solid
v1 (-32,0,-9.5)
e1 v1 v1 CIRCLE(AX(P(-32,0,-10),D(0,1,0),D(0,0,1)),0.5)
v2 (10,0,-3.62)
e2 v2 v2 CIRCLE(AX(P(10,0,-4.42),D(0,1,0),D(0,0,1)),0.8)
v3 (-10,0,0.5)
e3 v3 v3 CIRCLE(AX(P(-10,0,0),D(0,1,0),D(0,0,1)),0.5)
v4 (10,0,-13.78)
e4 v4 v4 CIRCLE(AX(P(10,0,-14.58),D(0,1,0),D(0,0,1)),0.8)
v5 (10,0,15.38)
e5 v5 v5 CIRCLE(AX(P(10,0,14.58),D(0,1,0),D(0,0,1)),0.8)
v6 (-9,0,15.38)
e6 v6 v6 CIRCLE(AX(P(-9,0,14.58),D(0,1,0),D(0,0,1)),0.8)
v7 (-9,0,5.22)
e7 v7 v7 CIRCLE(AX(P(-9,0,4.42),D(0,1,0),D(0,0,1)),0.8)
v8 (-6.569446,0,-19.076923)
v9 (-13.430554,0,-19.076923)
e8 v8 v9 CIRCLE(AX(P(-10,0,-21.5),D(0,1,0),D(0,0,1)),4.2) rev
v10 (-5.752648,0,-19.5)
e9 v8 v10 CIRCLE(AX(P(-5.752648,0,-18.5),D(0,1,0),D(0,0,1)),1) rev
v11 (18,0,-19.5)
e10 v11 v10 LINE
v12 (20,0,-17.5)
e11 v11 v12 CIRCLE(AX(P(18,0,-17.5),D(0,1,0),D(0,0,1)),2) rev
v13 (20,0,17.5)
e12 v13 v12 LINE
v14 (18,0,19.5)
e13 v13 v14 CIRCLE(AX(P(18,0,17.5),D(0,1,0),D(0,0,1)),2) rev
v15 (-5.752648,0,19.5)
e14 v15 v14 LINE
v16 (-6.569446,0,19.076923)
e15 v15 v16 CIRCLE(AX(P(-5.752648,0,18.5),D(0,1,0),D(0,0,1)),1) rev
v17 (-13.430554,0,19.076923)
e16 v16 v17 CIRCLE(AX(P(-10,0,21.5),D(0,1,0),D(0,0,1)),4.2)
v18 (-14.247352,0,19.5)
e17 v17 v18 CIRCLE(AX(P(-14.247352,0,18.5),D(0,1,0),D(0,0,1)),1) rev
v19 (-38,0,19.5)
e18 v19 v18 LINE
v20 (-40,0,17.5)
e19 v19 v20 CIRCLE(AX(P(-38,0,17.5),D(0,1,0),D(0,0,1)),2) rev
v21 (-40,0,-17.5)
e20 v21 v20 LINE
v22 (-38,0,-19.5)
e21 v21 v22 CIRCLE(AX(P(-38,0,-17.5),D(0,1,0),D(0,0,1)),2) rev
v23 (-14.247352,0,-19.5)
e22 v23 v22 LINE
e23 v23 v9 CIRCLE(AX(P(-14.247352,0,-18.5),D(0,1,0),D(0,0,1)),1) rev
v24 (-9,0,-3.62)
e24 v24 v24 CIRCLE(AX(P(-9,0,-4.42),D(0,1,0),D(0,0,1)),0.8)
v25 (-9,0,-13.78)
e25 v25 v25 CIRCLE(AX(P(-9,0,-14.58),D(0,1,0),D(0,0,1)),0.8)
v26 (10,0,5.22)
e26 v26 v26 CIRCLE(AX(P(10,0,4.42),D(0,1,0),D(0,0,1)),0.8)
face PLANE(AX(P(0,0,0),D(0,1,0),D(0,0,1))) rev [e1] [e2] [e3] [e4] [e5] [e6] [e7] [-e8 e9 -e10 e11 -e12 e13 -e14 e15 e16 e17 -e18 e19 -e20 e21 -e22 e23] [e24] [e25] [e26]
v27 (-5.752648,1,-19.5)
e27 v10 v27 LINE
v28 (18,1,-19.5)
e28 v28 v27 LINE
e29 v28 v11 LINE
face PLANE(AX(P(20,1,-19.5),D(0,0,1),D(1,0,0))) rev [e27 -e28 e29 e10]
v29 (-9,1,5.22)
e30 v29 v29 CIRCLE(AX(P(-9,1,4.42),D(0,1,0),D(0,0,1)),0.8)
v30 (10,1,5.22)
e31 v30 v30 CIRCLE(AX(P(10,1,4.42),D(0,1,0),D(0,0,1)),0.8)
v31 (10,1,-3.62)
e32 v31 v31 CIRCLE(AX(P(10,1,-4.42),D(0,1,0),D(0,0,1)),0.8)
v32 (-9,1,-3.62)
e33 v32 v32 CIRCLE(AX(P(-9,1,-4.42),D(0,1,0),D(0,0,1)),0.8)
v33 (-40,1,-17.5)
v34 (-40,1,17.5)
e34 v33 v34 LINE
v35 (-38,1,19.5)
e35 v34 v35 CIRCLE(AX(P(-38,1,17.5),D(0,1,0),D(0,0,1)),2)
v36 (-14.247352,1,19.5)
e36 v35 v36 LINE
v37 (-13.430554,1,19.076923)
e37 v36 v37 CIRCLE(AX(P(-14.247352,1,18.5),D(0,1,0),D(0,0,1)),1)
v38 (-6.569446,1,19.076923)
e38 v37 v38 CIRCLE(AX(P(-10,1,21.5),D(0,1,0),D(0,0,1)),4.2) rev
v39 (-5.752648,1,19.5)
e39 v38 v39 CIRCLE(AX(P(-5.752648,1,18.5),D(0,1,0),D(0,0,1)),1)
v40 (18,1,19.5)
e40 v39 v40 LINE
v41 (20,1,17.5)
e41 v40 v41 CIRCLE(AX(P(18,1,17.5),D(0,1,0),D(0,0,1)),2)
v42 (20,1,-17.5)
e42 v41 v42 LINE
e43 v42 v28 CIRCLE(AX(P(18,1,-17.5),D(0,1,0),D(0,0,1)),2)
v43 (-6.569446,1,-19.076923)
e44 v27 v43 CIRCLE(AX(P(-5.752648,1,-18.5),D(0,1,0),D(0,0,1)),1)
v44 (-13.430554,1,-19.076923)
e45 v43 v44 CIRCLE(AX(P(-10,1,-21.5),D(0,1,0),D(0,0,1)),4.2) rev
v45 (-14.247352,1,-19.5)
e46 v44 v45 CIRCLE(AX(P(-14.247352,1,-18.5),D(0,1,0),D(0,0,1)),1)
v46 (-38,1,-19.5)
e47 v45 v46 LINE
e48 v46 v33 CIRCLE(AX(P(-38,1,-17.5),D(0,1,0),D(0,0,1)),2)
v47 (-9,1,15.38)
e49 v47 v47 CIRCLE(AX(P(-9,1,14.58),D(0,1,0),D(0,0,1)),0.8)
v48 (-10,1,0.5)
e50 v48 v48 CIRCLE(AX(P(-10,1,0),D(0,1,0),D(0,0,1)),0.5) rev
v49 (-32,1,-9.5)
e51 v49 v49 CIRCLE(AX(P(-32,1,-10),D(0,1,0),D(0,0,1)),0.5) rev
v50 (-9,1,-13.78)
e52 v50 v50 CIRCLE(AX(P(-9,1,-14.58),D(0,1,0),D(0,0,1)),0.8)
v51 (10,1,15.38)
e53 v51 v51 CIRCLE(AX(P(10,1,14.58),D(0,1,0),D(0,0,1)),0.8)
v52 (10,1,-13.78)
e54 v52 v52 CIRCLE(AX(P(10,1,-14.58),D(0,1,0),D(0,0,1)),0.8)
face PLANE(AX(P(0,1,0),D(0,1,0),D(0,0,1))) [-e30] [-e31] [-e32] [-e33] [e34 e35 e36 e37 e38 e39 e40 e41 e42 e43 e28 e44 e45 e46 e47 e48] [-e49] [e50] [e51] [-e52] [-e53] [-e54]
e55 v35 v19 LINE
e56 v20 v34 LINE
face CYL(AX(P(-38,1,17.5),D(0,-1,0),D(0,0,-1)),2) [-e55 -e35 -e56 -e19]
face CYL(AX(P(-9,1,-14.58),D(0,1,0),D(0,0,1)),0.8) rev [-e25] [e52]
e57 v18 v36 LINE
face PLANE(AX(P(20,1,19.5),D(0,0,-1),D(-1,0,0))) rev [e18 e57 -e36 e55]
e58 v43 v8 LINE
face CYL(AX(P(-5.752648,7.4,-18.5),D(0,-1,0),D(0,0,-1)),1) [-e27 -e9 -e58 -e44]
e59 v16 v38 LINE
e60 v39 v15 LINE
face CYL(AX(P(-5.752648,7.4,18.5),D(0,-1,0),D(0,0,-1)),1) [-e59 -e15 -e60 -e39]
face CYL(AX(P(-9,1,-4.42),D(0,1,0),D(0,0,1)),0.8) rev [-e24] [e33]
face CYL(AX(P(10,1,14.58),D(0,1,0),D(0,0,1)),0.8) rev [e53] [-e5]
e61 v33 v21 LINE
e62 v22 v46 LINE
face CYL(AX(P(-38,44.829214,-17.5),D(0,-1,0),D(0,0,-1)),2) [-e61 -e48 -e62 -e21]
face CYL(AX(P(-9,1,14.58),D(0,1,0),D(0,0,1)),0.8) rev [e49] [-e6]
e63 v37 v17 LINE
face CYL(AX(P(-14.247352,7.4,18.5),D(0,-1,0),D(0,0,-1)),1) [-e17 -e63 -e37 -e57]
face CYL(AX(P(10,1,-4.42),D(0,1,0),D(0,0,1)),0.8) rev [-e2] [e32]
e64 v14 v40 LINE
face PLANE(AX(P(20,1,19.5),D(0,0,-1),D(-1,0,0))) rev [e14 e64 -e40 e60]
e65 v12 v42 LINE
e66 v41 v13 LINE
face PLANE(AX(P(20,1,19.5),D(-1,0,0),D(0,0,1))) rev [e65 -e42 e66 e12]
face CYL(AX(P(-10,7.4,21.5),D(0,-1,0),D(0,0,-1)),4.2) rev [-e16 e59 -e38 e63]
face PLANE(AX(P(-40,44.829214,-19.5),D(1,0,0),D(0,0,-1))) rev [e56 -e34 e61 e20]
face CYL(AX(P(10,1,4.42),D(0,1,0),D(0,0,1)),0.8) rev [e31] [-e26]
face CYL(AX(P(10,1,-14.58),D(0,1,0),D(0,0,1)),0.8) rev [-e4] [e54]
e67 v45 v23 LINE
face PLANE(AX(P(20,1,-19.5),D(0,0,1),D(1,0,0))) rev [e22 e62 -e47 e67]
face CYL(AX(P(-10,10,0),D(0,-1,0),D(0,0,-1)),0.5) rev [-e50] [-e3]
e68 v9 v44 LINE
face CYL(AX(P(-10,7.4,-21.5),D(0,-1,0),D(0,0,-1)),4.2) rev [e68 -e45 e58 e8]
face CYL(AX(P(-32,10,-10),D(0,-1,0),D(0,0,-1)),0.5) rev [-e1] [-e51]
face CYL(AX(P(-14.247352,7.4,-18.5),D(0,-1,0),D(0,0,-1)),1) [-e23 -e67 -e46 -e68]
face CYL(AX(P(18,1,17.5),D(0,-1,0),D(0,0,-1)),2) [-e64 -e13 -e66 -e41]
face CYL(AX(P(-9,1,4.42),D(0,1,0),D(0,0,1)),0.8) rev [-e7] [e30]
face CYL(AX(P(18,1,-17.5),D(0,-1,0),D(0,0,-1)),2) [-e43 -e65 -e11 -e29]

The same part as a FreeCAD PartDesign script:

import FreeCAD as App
import Part
import Sketcher
from FreeCAD import Vector
Q = App.Units.Quantity


def edges_at(feature, points):
    """Names of the edges that pass closest to the given points."""
    edges = feature.Shape.Edges
    near = lambda p: min(range(len(edges)), key=lambda i: edges[i].distToShape(Part.Vertex(*p))[0])
    return sorted({f"Edge{near(p) + 1}" for p in points})


def add_polygon(sketch, points):
    """Adds a closed chain of lines whose ends are joined by coincident constraints."""
    first, n = sketch.GeometryCount, len(points)
    for a, b in zip(points, points[1:] + points[:1]):
        sketch.addGeometry(Part.LineSegment(App.Vector(*a, 0), App.Vector(*b, 0)), False)
    for i in range(n):
        sketch.addConstraint(Sketcher.Constraint("Coincident", first + i, 2, first + (i + 1) % n, 1))

doc = App.newDocument("Part")
body = doc.addObject("PartDesign::Body", "Body")

sketch1 = doc.addObject("Sketcher::SketchObject", "Sketch")
body.addObject(sketch1)
sketch1.AttachmentSupport = (doc.XZ_Plane, [""])
sketch1.MapMode = "FlatFace"
add_polygon(sketch1, [(-20, -20), (-20, 20), (20, 20), (20, -20)])
sketch1.addConstraint([
    Sketcher.Constraint("Vertical", 0),
    Sketcher.Constraint("Horizontal", 1),
    Sketcher.Constraint("Vertical", 2),
    Sketcher.Constraint("Horizontal", 3),
    Sketcher.Constraint("Symmetric", 0, 2, 2, 2, -1, 1),
    Sketcher.Constraint("DistanceX", 1, 1, 1, 2, Q("40 mm")),
    Sketcher.Constraint("DistanceY", 0, 1, 0, 2, Q("39 mm")),
])
pad1 = doc.addObject("PartDesign::Pad", "Pad")
body.addObject(pad1)
pad1.Profile = sketch1
pad1.Length = 1
pad1.Reversed = True

sketch2 = doc.addObject("Sketcher::SketchObject", "Sketch001")
body.addObject(sketch2)
sketch2.AttachmentSupport = (doc.XZ_Plane, [""])
sketch2.MapMode = "FlatFace"
add_polygon(sketch2, [(-40, -20), (-40, 20), (-20, 20), (-20, -20)])
sketch2.addConstraint([
    Sketcher.Constraint("Vertical", 0),
    Sketcher.Constraint("Horizontal", 1),
    Sketcher.Constraint("Vertical", 2),
    Sketcher.Constraint("Horizontal", 3),
    Sketcher.Constraint("DistanceX", 1, 1, 1, 2, Q("20 mm")),
    Sketcher.Constraint("DistanceY", 0, 1, 0, 2, Q("39 mm")),
    Sketcher.Constraint("DistanceX", 0, 2, -1, 1, Q("40 mm")),
    Sketcher.Constraint("DistanceY", -1, 1, 0, 2, Q("19.5 mm")),
])
pad2 = doc.addObject("PartDesign::Pad", "Pad001")
body.addObject(pad2)
pad2.Profile = sketch2
pad2.Length = 1
pad2.Reversed = True
doc.recompute()

fillet = doc.addObject("PartDesign::Fillet", "Fillet")
body.addObject(fillet)
fillet.Base = (pad2, edges_at(pad2, [
    (-40, 0.5, -19.5),
    (-40, 0.5, 19.5),
    (20, 0.5, -19.5),
    (20, 0.5, 19.5),
]))
fillet.Radius = 2

sketch3 = doc.addObject("Sketcher::SketchObject", "Sketch002")
body.addObject(sketch3)
sketch3.AttachmentSupport = (doc.XZ_Plane, [""])
sketch3.MapMode = "FlatFace"
sketch3.AttachmentOffset = App.Placement(Vector(0, 0, -1), App.Rotation())
sketch3.addGeometry([
    Part.Circle(Vector(10, -14.6, 0), Vector(0, 0, 1), 0.8),
    Part.Circle(Vector(10, -4.4, 0), Vector(0, 0, 1), 0.8),
    Part.Circle(Vector(10, 4.4, 0), Vector(0, 0, 1), 0.8),
    Part.Circle(Vector(10, 14.6, 0), Vector(0, 0, 1), 0.8),
    Part.Circle(Vector(-9, 14.6, 0), Vector(0, 0, 1), 0.8),
    Part.Circle(Vector(-9, 4.4, 0), Vector(0, 0, 1), 0.8),
    Part.Circle(Vector(-9, -4.4, 0), Vector(0, 0, 1), 0.8),
    Part.Circle(Vector(-9, -14.6, 0), Vector(0, 0, 1), 0.8),
], False)
sketch3.addConstraint([
    Sketcher.Constraint("Equal", 0, 1),
    Sketcher.Constraint("Equal", 1, 2),
    Sketcher.Constraint("Equal", 2, 3),
    Sketcher.Constraint("Equal", 3, 4),
    Sketcher.Constraint("Equal", 4, 5),
    Sketcher.Constraint("Equal", 5, 6),
    Sketcher.Constraint("Equal", 6, 7),
    Sketcher.Constraint("Symmetric", 1, 3, 2, 3, -1),
    Sketcher.Constraint("Symmetric", 0, 3, 3, 3, -1),
    Sketcher.Constraint("Symmetric", 5, 3, 6, 3, -1),
    Sketcher.Constraint("Symmetric", 4, 3, 7, 3, -1),
    Sketcher.Constraint("Horizontal", 3, 3, 4, 3),
    Sketcher.Constraint("Horizontal", 2, 3, 5, 3),
    Sketcher.Constraint("Vertical", 0, 3, 1, 3),
    Sketcher.Constraint("Vertical", 4, 3, 5, 3),
    Sketcher.Constraint("Diameter", 0, Q("1.6 mm")),
    Sketcher.Constraint("DistanceX", -1, 1, 0, 3, Q("10 mm")),
    Sketcher.Constraint("DistanceX", 4, 3, -1, 1, Q("9 mm")),
    Sketcher.Constraint("DistanceY", 0, 3, 2, 3, Q("19 mm")),
    Sketcher.Constraint("DistanceY", 0, 3, -1, 1, Q("14.58 mm")),
])
doc.recompute()
hole = doc.addObject("PartDesign::Hole", "Hole")
body.addObject(hole)
hole.Profile = sketch3
hole.ThreadType = "None"
hole.Diameter = 1.6
hole.DepthType = "Dimension"
hole.Depth = 19.77
hole.DrillPoint = "Angled"
hole.DrillPointAngle = 118
hole.Reversed = True

sketch4 = doc.addObject("Sketcher::SketchObject", "Sketch003")
body.addObject(sketch4)
sketch4.AttachmentSupport = (doc.XZ_Plane, [""])
sketch4.MapMode = "FlatFace"
sketch4.addGeometry([
    Part.Circle(Vector(-10, 21.5, 0), Vector(0, 0, 1), 4.2),
    Part.Circle(Vector(-10, -21.5, 0), Vector(0, 0, 1), 4.2),
], False)
sketch4.addConstraint([
    Sketcher.Constraint("Equal", 0, 1),
    Sketcher.Constraint("Symmetric", 0, 3, 1, 3, -1),
    Sketcher.Constraint("Diameter", 0, Q("8.4 mm")),
    Sketcher.Constraint("DistanceX", 0, 3, -1, 1, Q("10 mm")),
    Sketcher.Constraint("DistanceY", 1, 3, 0, 3, Q("43 mm")),
])
pocket1 = doc.addObject("PartDesign::Pocket", "Pocket")
body.addObject(pocket1)
pocket1.Profile = sketch4
pocket1.Length = 7.4
doc.recompute()

fillet2 = doc.addObject("PartDesign::Fillet", "Fillet001")
body.addObject(fillet2)
fillet2.Base = (pocket1, edges_at(pocket1, [
    (-6.307, 0.5, 19.5),
    (-13.693, 0.5, 19.5),
    (-13.693, 0.5, -19.5),
    (-6.307, 0.5, -19.5),
]))
fillet2.Radius = 1

sketch5 = doc.addObject("Sketcher::SketchObject", "Sketch004")
body.addObject(sketch5)
sketch5.AttachmentSupport = (doc.XZ_Plane, [""])
sketch5.MapMode = "FlatFace"
sketch5.addGeometry(Part.Circle(Vector(-32, -10, 0), Vector(0, 0, 1), 0.5), False)
sketch5.addConstraint([
    Sketcher.Constraint("Diameter", 0, Q("1 mm")),
    Sketcher.Constraint("DistanceX", 0, 3, -1, 1, Q("32 mm")),
    Sketcher.Constraint("DistanceY", 0, 3, -1, 1, Q("10 mm")),
])
pocket2 = doc.addObject("PartDesign::Pocket", "Pocket001")
body.addObject(pocket2)
pocket2.Profile = sketch5
pocket2.Length = 10

sketch6 = doc.addObject("Sketcher::SketchObject", "Sketch005")
body.addObject(sketch6)
sketch6.AttachmentSupport = (doc.XZ_Plane, [""])
sketch6.MapMode = "FlatFace"
sketch6.addGeometry(Part.Circle(Vector(-10, 0, 0), Vector(0, 0, 1), 0.5), False)
sketch6.addConstraint([
    Sketcher.Constraint("PointOnObject", 0, 3, -1),
    Sketcher.Constraint("Diameter", 0, Q("1 mm")),
    Sketcher.Constraint("DistanceX", 0, 3, -1, 1, Q("10 mm")),
])
pocket3 = doc.addObject("PartDesign::Pocket", "Pocket002")
body.addObject(pocket3)
pocket3.Profile = sketch6
pocket3.Length = 10

doc.recompute()
